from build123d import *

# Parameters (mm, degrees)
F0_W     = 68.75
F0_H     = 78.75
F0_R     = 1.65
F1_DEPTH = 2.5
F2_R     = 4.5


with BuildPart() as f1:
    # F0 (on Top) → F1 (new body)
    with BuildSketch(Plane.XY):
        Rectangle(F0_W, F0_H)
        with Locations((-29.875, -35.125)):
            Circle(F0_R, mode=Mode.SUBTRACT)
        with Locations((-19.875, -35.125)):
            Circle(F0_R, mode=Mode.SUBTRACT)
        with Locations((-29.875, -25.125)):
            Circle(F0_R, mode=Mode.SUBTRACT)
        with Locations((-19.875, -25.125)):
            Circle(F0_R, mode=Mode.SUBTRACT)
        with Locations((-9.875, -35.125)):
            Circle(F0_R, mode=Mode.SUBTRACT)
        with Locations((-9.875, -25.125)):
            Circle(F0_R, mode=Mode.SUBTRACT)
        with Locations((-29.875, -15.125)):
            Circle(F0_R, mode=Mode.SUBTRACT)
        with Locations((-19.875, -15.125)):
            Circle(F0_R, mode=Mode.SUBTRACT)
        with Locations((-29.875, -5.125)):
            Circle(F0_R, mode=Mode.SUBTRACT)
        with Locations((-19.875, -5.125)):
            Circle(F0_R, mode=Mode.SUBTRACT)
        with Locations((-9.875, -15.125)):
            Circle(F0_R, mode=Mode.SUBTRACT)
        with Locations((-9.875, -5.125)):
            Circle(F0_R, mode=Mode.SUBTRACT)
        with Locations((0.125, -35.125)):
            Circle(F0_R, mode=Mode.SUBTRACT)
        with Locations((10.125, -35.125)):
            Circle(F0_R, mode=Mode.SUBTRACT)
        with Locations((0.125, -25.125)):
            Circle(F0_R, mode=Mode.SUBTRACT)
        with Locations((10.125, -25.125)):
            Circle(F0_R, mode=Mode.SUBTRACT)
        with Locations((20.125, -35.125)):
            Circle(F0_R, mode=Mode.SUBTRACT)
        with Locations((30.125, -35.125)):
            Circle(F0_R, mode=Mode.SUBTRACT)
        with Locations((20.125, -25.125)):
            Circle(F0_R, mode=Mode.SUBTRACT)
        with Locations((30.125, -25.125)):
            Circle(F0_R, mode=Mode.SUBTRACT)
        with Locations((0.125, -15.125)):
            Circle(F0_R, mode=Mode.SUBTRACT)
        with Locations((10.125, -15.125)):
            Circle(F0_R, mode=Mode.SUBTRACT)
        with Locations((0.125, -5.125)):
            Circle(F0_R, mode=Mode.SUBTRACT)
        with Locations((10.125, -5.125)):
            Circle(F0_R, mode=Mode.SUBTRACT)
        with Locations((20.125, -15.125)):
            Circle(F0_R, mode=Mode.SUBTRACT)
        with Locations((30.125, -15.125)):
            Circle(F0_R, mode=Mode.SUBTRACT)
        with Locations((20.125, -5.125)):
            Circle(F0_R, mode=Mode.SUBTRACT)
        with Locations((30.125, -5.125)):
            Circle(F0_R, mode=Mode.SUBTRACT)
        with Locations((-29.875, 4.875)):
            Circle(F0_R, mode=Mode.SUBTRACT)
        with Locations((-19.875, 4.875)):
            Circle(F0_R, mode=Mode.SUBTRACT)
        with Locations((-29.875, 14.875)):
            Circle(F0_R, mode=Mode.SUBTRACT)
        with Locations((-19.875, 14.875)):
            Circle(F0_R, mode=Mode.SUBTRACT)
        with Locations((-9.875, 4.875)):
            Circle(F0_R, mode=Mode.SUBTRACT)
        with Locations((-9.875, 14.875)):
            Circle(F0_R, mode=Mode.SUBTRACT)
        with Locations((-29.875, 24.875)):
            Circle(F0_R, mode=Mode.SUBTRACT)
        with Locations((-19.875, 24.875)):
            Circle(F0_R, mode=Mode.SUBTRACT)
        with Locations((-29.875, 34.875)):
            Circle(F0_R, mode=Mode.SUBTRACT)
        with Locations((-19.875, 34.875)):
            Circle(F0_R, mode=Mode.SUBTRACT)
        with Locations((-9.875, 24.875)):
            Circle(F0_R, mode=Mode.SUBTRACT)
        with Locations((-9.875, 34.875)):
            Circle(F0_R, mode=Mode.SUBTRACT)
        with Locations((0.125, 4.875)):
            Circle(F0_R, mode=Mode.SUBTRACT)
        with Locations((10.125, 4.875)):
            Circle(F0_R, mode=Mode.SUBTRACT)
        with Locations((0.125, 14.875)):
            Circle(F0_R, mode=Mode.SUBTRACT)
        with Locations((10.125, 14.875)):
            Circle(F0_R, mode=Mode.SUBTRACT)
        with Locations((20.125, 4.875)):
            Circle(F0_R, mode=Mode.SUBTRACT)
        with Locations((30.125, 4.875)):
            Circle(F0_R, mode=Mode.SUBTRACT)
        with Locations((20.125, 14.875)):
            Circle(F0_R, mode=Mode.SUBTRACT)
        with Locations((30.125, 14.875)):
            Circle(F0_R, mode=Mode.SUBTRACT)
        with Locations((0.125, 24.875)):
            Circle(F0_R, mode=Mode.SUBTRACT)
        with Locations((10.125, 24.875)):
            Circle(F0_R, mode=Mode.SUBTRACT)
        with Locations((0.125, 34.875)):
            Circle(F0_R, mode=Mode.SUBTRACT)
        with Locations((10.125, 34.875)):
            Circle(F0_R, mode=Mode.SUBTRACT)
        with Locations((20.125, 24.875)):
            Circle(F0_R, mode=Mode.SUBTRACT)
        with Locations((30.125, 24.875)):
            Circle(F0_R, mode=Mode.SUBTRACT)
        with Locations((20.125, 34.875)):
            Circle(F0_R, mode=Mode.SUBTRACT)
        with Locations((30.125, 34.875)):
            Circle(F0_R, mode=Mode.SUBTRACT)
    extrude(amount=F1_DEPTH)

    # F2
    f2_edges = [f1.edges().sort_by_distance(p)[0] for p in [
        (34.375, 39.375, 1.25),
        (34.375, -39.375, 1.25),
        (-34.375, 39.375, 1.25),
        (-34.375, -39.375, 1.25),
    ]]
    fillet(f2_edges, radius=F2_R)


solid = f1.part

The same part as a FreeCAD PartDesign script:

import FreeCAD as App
import Part
import Sketcher


def edges_at(feature, points):
    """Names of the edges that pass closest to the given points."""
    edges = feature.Shape.Edges
    near = lambda p: min(range(len(edges)), key=lambda i: edges[i].distToShape(Part.Vertex(*p))[0])
    return sorted({f"Edge{near(p) + 1}" for p in points})

doc = App.newDocument("Part")
body = doc.addObject("PartDesign::Body", "Body")

sketch1 = body.newObject("Sketcher::SketchObject", "Sketch")
sketch1.AttachmentSupport = (doc.getObject("XY_Plane"), [""])
sketch1.MapMode = "FlatFace"
sketch1.addGeometry([
    Part.LineSegment(App.Vector(-34.4, 39.4, 0), App.Vector(-34.4, -39.4, 0)),
    Part.LineSegment(App.Vector(-34.4, -39.4, 0), App.Vector(34.4, -39.4, 0)),
    Part.LineSegment(App.Vector(34.4, -39.4, 0), App.Vector(34.4, 39.4, 0)),
    Part.LineSegment(App.Vector(34.4, 39.4, 0), App.Vector(-34.4, 39.4, 0)),
    Part.Circle(App.Vector(-29.9, -35.1, 0), App.Vector(0, 0, 1), 1.6),
    Part.Circle(App.Vector(-19.9, -35.1, 0), App.Vector(0, 0, 1), 1.6),
    Part.Circle(App.Vector(-29.9, -25.1, 0), App.Vector(0, 0, 1), 1.6),
    Part.Circle(App.Vector(-19.9, -25.1, 0), App.Vector(0, 0, 1), 1.6),
    Part.Circle(App.Vector(-9.9, -35.1, 0), App.Vector(0, 0, 1), 1.6),
    Part.Circle(App.Vector(-9.9, -25.1, 0), App.Vector(0, 0, 1), 1.6),
    Part.Circle(App.Vector(-29.9, -15.1, 0), App.Vector(0, 0, 1), 1.6),
    Part.Circle(App.Vector(-19.9, -15.1, 0), App.Vector(0, 0, 1), 1.6),
    Part.Circle(App.Vector(-29.9, -5.1, 0), App.Vector(0, 0, 1), 1.6),
    Part.Circle(App.Vector(-19.9, -5.1, 0), App.Vector(0, 0, 1), 1.6),
    Part.Circle(App.Vector(-9.9, -15.1, 0), App.Vector(0, 0, 1), 1.6),
    Part.Circle(App.Vector(-9.9, -5.1, 0), App.Vector(0, 0, 1), 1.6),
    Part.Circle(App.Vector(0.1, -35.1, 0), App.Vector(0, 0, 1), 1.6),
    Part.Circle(App.Vector(10.1, -35.1, 0), App.Vector(0, 0, 1), 1.6),
    Part.Circle(App.Vector(0.1, -25.1, 0), App.Vector(0, 0, 1), 1.6),
    Part.Circle(App.Vector(10.1, -25.1, 0), App.Vector(0, 0, 1), 1.6),
    Part.Circle(App.Vector(20.1, -35.1, 0), App.Vector(0, 0, 1), 1.6),
    Part.Circle(App.Vector(30.1, -35.1, 0), App.Vector(0, 0, 1), 1.6),
    Part.Circle(App.Vector(20.1, -25.1, 0), App.Vector(0, 0, 1), 1.6),
    Part.Circle(App.Vector(30.1, -25.1, 0), App.Vector(0, 0, 1), 1.6),
    Part.Circle(App.Vector(0.1, -15.1, 0), App.Vector(0, 0, 1), 1.6),
    Part.Circle(App.Vector(10.1, -15.1, 0), App.Vector(0, 0, 1), 1.6),
    Part.Circle(App.Vector(0.1, -5.1, 0), App.Vector(0, 0, 1), 1.6),
    Part.Circle(App.Vector(10.1, -5.1, 0), App.Vector(0, 0, 1), 1.6),
    Part.Circle(App.Vector(20.1, -15.1, 0), App.Vector(0, 0, 1), 1.6),
    Part.Circle(App.Vector(30.1, -15.1, 0), App.Vector(0, 0, 1), 1.6),
    Part.Circle(App.Vector(20.1, -5.1, 0), App.Vector(0, 0, 1), 1.6),
    Part.Circle(App.Vector(30.1, -5.1, 0), App.Vector(0, 0, 1), 1.6),
    Part.Circle(App.Vector(-29.9, 4.9, 0), App.Vector(0, 0, 1), 1.6),
    Part.Circle(App.Vector(-19.9, 4.9, 0), App.Vector(0, 0, 1), 1.6),
    Part.Circle(App.Vector(-29.9, 14.9, 0), App.Vector(0, 0, 1), 1.6),
    Part.Circle(App.Vector(-19.9, 14.9, 0), App.Vector(0, 0, 1), 1.6),
    Part.Circle(App.Vector(-9.9, 4.9, 0), App.Vector(0, 0, 1), 1.6),
    Part.Circle(App.Vector(-9.9, 14.9, 0), App.Vector(0, 0, 1), 1.6),
    Part.Circle(App.Vector(-29.9, 24.9, 0), App.Vector(0, 0, 1), 1.6),
    Part.Circle(App.Vector(-19.9, 24.9, 0), App.Vector(0, 0, 1), 1.6),
    Part.Circle(App.Vector(-29.9, 34.9, 0), App.Vector(0, 0, 1), 1.6),
    Part.Circle(App.Vector(-19.9, 34.9, 0), App.Vector(0, 0, 1), 1.6),
    Part.Circle(App.Vector(-9.9, 24.9, 0), App.Vector(0, 0, 1), 1.6),
    Part.Circle(App.Vector(-9.9, 34.9, 0), App.Vector(0, 0, 1), 1.6),
    Part.Circle(App.Vector(0.1, 4.9, 0), App.Vector(0, 0, 1), 1.6),
    Part.Circle(App.Vector(10.1, 4.9, 0), App.Vector(0, 0, 1), 1.6),
    Part.Circle(App.Vector(0.1, 14.9, 0), App.Vector(0, 0, 1), 1.6),
    Part.Circle(App.Vector(10.1, 14.9, 0), App.Vector(0, 0, 1), 1.6),
    Part.Circle(App.Vector(20.1, 4.9, 0), App.Vector(0, 0, 1), 1.6),
    Part.Circle(App.Vector(30.1, 4.9, 0), App.Vector(0, 0, 1), 1.6),
    Part.Circle(App.Vector(20.1, 14.9, 0), App.Vector(0, 0, 1), 1.6),
    Part.Circle(App.Vector(30.1, 14.9, 0), App.Vector(0, 0, 1), 1.6),
    Part.Circle(App.Vector(0.1, 24.9, 0), App.Vector(0, 0, 1), 1.6),
    Part.Circle(App.Vector(10.1, 24.9, 0), App.Vector(0, 0, 1), 1.6),
    Part.Circle(App.Vector(0.1, 34.9, 0), App.Vector(0, 0, 1), 1.6),
    Part.Circle(App.Vector(10.1, 34.9, 0), App.Vector(0, 0, 1), 1.6),
    Part.Circle(App.Vector(20.1, 24.9, 0), App.Vector(0, 0, 1), 1.6),
    Part.Circle(App.Vector(30.1, 24.9, 0), App.Vector(0, 0, 1), 1.6),
    Part.Circle(App.Vector(20.1, 34.9, 0), App.Vector(0, 0, 1), 1.6),
    Part.Circle(App.Vector(30.1, 34.9, 0), App.Vector(0, 0, 1), 1.6),
], False)
sketch1.addConstraint([
    Sketcher.Constraint("Coincident", 0, 2, 1, 1),
    Sketcher.Constraint("Coincident", 1, 2, 2, 1),
    Sketcher.Constraint("Coincident", 2, 2, 3, 1),
    Sketcher.Constraint("Coincident", 3, 2, 0, 1),
    Sketcher.Constraint("Vertical", 0),
    Sketcher.Constraint("Horizontal", 1),
    Sketcher.Constraint("Vertical", 2),
    Sketcher.Constraint("Horizontal", 3),
    Sketcher.Constraint("Equal", 4, 5),
    Sketcher.Constraint("Equal", 5, 6),
    Sketcher.Constraint("Equal", 6, 7),
    Sketcher.Constraint("Equal", 7, 8),
    Sketcher.Constraint("Equal", 8, 9),
    Sketcher.Constraint("Equal", 9, 10),
    Sketcher.Constraint("Equal", 10, 11),
    Sketcher.Constraint("Equal", 11, 12),
    Sketcher.Constraint("Equal", 12, 13),
    Sketcher.Constraint("Equal", 13, 14),
    Sketcher.Constraint("Equal", 14, 15),
    Sketcher.Constraint("Equal", 15, 16),
    Sketcher.Constraint("Equal", 16, 17),
    Sketcher.Constraint("Equal", 17, 18),
    Sketcher.Constraint("Equal", 18, 19),
    Sketcher.Constraint("Equal", 19, 20),
    Sketcher.Constraint("Equal", 20, 21),
    Sketcher.Constraint("Equal", 21, 22),
    Sketcher.Constraint("Equal", 22, 23),
    Sketcher.Constraint("Equal", 23, 24),
    Sketcher.Constraint("Equal", 24, 25),
    Sketcher.Constraint("Equal", 25, 26),
    Sketcher.Constraint("Equal", 26, 27),
    Sketcher.Constraint("Equal", 27, 28),
    Sketcher.Constraint("Equal", 28, 29),
    Sketcher.Constraint("Equal", 29, 30),
    Sketcher.Constraint("Equal", 30, 31),
    Sketcher.Constraint("Equal", 31, 32),
    Sketcher.Constraint("Equal", 32, 33),
    Sketcher.Constraint("Equal", 33, 34),
    Sketcher.Constraint("Equal", 34, 35),
    Sketcher.Constraint("Equal", 35, 36),
    Sketcher.Constraint("Equal", 36, 37),
    Sketcher.Constraint("Equal", 37, 38),
    Sketcher.Constraint("Equal", 38, 39),
    Sketcher.Constraint("Equal", 39, 40),
    Sketcher.Constraint("Equal", 40, 41),
    Sketcher.Constraint("Equal", 41, 42),
    Sketcher.Constraint("Equal", 42, 43),
    Sketcher.Constraint("Equal", 43, 44),
    Sketcher.Constraint("Equal", 44, 45),
    Sketcher.Constraint("Equal", 45, 46),
    Sketcher.Constraint("Equal", 46, 47),
    Sketcher.Constraint("Equal", 47, 48),
    Sketcher.Constraint("Equal", 48, 49),
    Sketcher.Constraint("Equal", 49, 50),
    Sketcher.Constraint("Equal", 50, 51),
    Sketcher.Constraint("Equal", 51, 52),
    Sketcher.Constraint("Equal", 52, 53),
    Sketcher.Constraint("Equal", 53, 54),
    Sketcher.Constraint("Equal", 54, 55),
    Sketcher.Constraint("Equal", 55, 56),
    Sketcher.Constraint("Equal", 56, 57),
    Sketcher.Constraint("Equal", 57, 58),
    Sketcher.Constraint("Equal", 58, 59),
    Sketcher.Constraint("Symmetric", 0, 2, 2, 2, -1, 1),
    Sketcher.Constraint("Horizontal", 4, 3, 5, 3),
    Sketcher.Constraint("Horizontal", 6, 3, 7, 3),
    Sketcher.Constraint("Horizontal", 5, 3, 8, 3),
    Sketcher.Constraint("Horizontal", 7, 3, 9, 3),
    Sketcher.Constraint("Horizontal", 10, 3, 11, 3),
    Sketcher.Constraint("Horizontal", 12, 3, 13, 3),
    Sketcher.Constraint("Horizontal", 11, 3, 14, 3),
    Sketcher.Constraint("Horizontal", 13, 3, 15, 3),
    Sketcher.Constraint("Horizontal", 8, 3, 16, 3),
    Sketcher.Constraint("Horizontal", 16, 3, 17, 3),
    Sketcher.Constraint("Horizontal", 9, 3, 18, 3),
    Sketcher.Constraint("Horizontal", 18, 3, 19, 3),
    Sketcher.Constraint("Horizontal", 17, 3, 20, 3),
    Sketcher.Constraint("Horizontal", 20, 3, 21, 3),
    Sketcher.Constraint("Horizontal", 19, 3, 22, 3),
    Sketcher.Constraint("Horizontal", 22, 3, 23, 3),
    Sketcher.Constraint("Horizontal", 14, 3, 24, 3),
    Sketcher.Constraint("Horizontal", 24, 3, 25, 3),
    Sketcher.Constraint("Horizontal", 15, 3, 26, 3),
    Sketcher.Constraint("Horizontal", 26, 3, 27, 3),
    Sketcher.Constraint("Horizontal", 25, 3, 28, 3),
    Sketcher.Constraint("Horizontal", 28, 3, 29, 3),
    Sketcher.Constraint("Horizontal", 27, 3, 30, 3),
    Sketcher.Constraint("Horizontal", 30, 3, 31, 3),
    Sketcher.Constraint("Horizontal", 32, 3, 33, 3),
    Sketcher.Constraint("Horizontal", 34, 3, 35, 3),
    Sketcher.Constraint("Horizontal", 33, 3, 36, 3),
    Sketcher.Constraint("Horizontal", 35, 3, 37, 3),
    Sketcher.Constraint("Horizontal", 38, 3, 39, 3),
    Sketcher.Constraint("Horizontal", 40, 3, 41, 3),
    Sketcher.Constraint("Horizontal", 39, 3, 42, 3),
    Sketcher.Constraint("Horizontal", 41, 3, 43, 3),
    Sketcher.Constraint("Horizontal", 36, 3, 44, 3),
    Sketcher.Constraint("Horizontal", 44, 3, 45, 3),
    Sketcher.Constraint("Horizontal", 37, 3, 46, 3),
    Sketcher.Constraint("Horizontal", 46, 3, 47, 3),
    Sketcher.Constraint("Horizontal", 45, 3, 48, 3),
    Sketcher.Constraint("Horizontal", 48, 3, 49, 3),
    Sketcher.Constraint("Horizontal", 47, 3, 50, 3),
    Sketcher.Constraint("Horizontal", 50, 3, 51, 3),
    Sketcher.Constraint("Horizontal", 42, 3, 52, 3),
    Sketcher.Constraint("Horizontal", 52, 3, 53, 3),
    Sketcher.Constraint("Horizontal", 43, 3, 54, 3),
    Sketcher.Constraint("Horizontal", 54, 3, 55, 3),
    Sketcher.Constraint("Horizontal", 53, 3, 56, 3),
    Sketcher.Constraint("Horizontal", 56, 3, 57, 3),
    Sketcher.Constraint("Horizontal", 55, 3, 58, 3),
    Sketcher.Constraint("Horizontal", 58, 3, 59, 3),
    Sketcher.Constraint("Vertical", 4, 3, 6, 3),
    Sketcher.Constraint("Vertical", 5, 3, 7, 3),
    Sketcher.Constraint("Vertical", 8, 3, 9, 3),
    Sketcher.Constraint("Vertical", 6, 3, 10, 3),
    Sketcher.Constraint("Vertical", 7, 3, 11, 3),
    Sketcher.Constraint("Vertical", 10, 3, 12, 3),
    Sketcher.Constraint("Vertical", 11, 3, 13, 3),
    Sketcher.Constraint("Vertical", 9, 3, 14, 3),
    Sketcher.Constraint("Vertical", 14, 3, 15, 3),
    Sketcher.Constraint("Vertical", 16, 3, 18, 3),
    Sketcher.Constraint("Vertical", 17, 3, 19, 3),
    Sketcher.Constraint("Vertical", 20, 3, 22, 3),
    Sketcher.Constraint("Vertical", 21, 3, 23, 3),
    Sketcher.Constraint("Vertical", 18, 3, 24, 3),
    Sketcher.Constraint("Vertical", 19, 3, 25, 3),
    Sketcher.Constraint("Vertical", 24, 3, 26, 3),
    Sketcher.Constraint("Vertical", 25, 3, 27, 3),
    Sketcher.Constraint("Vertical", 22, 3, 28, 3),
    Sketcher.Constraint("Vertical", 23, 3, 29, 3),
    Sketcher.Constraint("Vertical", 28, 3, 30, 3),
    Sketcher.Constraint("Vertical", 29, 3, 31, 3),
    Sketcher.Constraint("Vertical", 12, 3, 32, 3),
    Sketcher.Constraint("Vertical", 13, 3, 33, 3),
    Sketcher.Constraint("Vertical", 32, 3, 34, 3),
    Sketcher.Constraint("Vertical", 33, 3, 35, 3),
    Sketcher.Constraint("Vertical", 15, 3, 36, 3),
    Sketcher.Constraint("Vertical", 36, 3, 37, 3),
    Sketcher.Constraint("Vertical", 34, 3, 38, 3),
    Sketcher.Constraint("Vertical", 35, 3, 39, 3),
    Sketcher.Constraint("Vertical", 38, 3, 40, 3),
    Sketcher.Constraint("Vertical", 39, 3, 41, 3),
    Sketcher.Constraint("Vertical", 37, 3, 42, 3),
    Sketcher.Constraint("Vertical", 42, 3, 43, 3),
    Sketcher.Constraint("Vertical", 26, 3, 44, 3),
    Sketcher.Constraint("Vertical", 27, 3, 45, 3),
    Sketcher.Constraint("Vertical", 44, 3, 46, 3),
    Sketcher.Constraint("Vertical", 45, 3, 47, 3),
    Sketcher.Constraint("Vertical", 30, 3, 48, 3),
    Sketcher.Constraint("Vertical", 31, 3, 49, 3),
    Sketcher.Constraint("Vertical", 48, 3, 50, 3),
    Sketcher.Constraint("Vertical", 49, 3, 51, 3),
    Sketcher.Constraint("Vertical", 46, 3, 52, 3),
    Sketcher.Constraint("Vertical", 47, 3, 53, 3),
    Sketcher.Constraint("Vertical", 52, 3, 54, 3),
    Sketcher.Constraint("Vertical", 53, 3, 55, 3),
    Sketcher.Constraint("Vertical", 50, 3, 56, 3),
    Sketcher.Constraint("Vertical", 51, 3, 57, 3),
    Sketcher.Constraint("Vertical", 56, 3, 58, 3),
    Sketcher.Constraint("Vertical", 57, 3, 59, 3),
    Sketcher.Constraint("Diameter", 4, 3.3),
    Sketcher.Constraint("DistanceX", 4, 3, 5, 3, 10.0),
    Sketcher.Constraint("DistanceY", 4, 3, 6, 3, 10.0),
    Sketcher.Constraint("DistanceX", 5, 3, 8, 3, 10.0),
    Sketcher.Constraint("DistanceY", 6, 3, 10, 3, 10.0),
    Sketcher.Constraint("DistanceY", 10, 3, 12, 3, 10.0),
    Sketcher.Constraint("DistanceX", 8, 3, 16, 3, 10.0),
    Sketcher.Constraint("DistanceX", 16, 3, 17, 3, 10.0),
    Sketcher.Constraint("DistanceX", 17, 3, 20, 3, 10.0),
    Sketcher.Constraint("DistanceX", 20, 3, 21, 3, 10.0),
    Sketcher.Constraint("DistanceY", 12, 3, 32, 3, 10.0),
    Sketcher.Constraint("DistanceY", 32, 3, 34, 3, 10.0),
    Sketcher.Constraint("DistanceY", 34, 3, 38, 3, 10.0),
    Sketcher.Constraint("DistanceY", 38, 3, 40, 3, 10.0),
    Sketcher.Constraint("DistanceX", 1, 1, 1, 2, 68.75),
    Sketcher.Constraint("DistanceY", 0, 2, 0, 1, 78.75),
    Sketcher.Constraint("DistanceX", 0, 2, 4, 3, 4.5),
    Sketcher.Constraint("DistanceY", 59, 3, 2, 2, 4.5),
])
pad1 = body.newObject("PartDesign::Pad", "Pad")
pad1.Profile = sketch1
pad1.Length = 2.5
doc.recompute()

fillet = body.newObject("PartDesign::Fillet", "Fillet")
fillet.Base = (pad1, edges_at(pad1, [
    (34.375, 39.375, 1.25),
    (34.375, -39.375, 1.25),
    (-34.375, 39.375, 1.25),
    (-34.375, -39.375, 1.25),
]))
fillet.Radius = 4.5

doc.recompute()
